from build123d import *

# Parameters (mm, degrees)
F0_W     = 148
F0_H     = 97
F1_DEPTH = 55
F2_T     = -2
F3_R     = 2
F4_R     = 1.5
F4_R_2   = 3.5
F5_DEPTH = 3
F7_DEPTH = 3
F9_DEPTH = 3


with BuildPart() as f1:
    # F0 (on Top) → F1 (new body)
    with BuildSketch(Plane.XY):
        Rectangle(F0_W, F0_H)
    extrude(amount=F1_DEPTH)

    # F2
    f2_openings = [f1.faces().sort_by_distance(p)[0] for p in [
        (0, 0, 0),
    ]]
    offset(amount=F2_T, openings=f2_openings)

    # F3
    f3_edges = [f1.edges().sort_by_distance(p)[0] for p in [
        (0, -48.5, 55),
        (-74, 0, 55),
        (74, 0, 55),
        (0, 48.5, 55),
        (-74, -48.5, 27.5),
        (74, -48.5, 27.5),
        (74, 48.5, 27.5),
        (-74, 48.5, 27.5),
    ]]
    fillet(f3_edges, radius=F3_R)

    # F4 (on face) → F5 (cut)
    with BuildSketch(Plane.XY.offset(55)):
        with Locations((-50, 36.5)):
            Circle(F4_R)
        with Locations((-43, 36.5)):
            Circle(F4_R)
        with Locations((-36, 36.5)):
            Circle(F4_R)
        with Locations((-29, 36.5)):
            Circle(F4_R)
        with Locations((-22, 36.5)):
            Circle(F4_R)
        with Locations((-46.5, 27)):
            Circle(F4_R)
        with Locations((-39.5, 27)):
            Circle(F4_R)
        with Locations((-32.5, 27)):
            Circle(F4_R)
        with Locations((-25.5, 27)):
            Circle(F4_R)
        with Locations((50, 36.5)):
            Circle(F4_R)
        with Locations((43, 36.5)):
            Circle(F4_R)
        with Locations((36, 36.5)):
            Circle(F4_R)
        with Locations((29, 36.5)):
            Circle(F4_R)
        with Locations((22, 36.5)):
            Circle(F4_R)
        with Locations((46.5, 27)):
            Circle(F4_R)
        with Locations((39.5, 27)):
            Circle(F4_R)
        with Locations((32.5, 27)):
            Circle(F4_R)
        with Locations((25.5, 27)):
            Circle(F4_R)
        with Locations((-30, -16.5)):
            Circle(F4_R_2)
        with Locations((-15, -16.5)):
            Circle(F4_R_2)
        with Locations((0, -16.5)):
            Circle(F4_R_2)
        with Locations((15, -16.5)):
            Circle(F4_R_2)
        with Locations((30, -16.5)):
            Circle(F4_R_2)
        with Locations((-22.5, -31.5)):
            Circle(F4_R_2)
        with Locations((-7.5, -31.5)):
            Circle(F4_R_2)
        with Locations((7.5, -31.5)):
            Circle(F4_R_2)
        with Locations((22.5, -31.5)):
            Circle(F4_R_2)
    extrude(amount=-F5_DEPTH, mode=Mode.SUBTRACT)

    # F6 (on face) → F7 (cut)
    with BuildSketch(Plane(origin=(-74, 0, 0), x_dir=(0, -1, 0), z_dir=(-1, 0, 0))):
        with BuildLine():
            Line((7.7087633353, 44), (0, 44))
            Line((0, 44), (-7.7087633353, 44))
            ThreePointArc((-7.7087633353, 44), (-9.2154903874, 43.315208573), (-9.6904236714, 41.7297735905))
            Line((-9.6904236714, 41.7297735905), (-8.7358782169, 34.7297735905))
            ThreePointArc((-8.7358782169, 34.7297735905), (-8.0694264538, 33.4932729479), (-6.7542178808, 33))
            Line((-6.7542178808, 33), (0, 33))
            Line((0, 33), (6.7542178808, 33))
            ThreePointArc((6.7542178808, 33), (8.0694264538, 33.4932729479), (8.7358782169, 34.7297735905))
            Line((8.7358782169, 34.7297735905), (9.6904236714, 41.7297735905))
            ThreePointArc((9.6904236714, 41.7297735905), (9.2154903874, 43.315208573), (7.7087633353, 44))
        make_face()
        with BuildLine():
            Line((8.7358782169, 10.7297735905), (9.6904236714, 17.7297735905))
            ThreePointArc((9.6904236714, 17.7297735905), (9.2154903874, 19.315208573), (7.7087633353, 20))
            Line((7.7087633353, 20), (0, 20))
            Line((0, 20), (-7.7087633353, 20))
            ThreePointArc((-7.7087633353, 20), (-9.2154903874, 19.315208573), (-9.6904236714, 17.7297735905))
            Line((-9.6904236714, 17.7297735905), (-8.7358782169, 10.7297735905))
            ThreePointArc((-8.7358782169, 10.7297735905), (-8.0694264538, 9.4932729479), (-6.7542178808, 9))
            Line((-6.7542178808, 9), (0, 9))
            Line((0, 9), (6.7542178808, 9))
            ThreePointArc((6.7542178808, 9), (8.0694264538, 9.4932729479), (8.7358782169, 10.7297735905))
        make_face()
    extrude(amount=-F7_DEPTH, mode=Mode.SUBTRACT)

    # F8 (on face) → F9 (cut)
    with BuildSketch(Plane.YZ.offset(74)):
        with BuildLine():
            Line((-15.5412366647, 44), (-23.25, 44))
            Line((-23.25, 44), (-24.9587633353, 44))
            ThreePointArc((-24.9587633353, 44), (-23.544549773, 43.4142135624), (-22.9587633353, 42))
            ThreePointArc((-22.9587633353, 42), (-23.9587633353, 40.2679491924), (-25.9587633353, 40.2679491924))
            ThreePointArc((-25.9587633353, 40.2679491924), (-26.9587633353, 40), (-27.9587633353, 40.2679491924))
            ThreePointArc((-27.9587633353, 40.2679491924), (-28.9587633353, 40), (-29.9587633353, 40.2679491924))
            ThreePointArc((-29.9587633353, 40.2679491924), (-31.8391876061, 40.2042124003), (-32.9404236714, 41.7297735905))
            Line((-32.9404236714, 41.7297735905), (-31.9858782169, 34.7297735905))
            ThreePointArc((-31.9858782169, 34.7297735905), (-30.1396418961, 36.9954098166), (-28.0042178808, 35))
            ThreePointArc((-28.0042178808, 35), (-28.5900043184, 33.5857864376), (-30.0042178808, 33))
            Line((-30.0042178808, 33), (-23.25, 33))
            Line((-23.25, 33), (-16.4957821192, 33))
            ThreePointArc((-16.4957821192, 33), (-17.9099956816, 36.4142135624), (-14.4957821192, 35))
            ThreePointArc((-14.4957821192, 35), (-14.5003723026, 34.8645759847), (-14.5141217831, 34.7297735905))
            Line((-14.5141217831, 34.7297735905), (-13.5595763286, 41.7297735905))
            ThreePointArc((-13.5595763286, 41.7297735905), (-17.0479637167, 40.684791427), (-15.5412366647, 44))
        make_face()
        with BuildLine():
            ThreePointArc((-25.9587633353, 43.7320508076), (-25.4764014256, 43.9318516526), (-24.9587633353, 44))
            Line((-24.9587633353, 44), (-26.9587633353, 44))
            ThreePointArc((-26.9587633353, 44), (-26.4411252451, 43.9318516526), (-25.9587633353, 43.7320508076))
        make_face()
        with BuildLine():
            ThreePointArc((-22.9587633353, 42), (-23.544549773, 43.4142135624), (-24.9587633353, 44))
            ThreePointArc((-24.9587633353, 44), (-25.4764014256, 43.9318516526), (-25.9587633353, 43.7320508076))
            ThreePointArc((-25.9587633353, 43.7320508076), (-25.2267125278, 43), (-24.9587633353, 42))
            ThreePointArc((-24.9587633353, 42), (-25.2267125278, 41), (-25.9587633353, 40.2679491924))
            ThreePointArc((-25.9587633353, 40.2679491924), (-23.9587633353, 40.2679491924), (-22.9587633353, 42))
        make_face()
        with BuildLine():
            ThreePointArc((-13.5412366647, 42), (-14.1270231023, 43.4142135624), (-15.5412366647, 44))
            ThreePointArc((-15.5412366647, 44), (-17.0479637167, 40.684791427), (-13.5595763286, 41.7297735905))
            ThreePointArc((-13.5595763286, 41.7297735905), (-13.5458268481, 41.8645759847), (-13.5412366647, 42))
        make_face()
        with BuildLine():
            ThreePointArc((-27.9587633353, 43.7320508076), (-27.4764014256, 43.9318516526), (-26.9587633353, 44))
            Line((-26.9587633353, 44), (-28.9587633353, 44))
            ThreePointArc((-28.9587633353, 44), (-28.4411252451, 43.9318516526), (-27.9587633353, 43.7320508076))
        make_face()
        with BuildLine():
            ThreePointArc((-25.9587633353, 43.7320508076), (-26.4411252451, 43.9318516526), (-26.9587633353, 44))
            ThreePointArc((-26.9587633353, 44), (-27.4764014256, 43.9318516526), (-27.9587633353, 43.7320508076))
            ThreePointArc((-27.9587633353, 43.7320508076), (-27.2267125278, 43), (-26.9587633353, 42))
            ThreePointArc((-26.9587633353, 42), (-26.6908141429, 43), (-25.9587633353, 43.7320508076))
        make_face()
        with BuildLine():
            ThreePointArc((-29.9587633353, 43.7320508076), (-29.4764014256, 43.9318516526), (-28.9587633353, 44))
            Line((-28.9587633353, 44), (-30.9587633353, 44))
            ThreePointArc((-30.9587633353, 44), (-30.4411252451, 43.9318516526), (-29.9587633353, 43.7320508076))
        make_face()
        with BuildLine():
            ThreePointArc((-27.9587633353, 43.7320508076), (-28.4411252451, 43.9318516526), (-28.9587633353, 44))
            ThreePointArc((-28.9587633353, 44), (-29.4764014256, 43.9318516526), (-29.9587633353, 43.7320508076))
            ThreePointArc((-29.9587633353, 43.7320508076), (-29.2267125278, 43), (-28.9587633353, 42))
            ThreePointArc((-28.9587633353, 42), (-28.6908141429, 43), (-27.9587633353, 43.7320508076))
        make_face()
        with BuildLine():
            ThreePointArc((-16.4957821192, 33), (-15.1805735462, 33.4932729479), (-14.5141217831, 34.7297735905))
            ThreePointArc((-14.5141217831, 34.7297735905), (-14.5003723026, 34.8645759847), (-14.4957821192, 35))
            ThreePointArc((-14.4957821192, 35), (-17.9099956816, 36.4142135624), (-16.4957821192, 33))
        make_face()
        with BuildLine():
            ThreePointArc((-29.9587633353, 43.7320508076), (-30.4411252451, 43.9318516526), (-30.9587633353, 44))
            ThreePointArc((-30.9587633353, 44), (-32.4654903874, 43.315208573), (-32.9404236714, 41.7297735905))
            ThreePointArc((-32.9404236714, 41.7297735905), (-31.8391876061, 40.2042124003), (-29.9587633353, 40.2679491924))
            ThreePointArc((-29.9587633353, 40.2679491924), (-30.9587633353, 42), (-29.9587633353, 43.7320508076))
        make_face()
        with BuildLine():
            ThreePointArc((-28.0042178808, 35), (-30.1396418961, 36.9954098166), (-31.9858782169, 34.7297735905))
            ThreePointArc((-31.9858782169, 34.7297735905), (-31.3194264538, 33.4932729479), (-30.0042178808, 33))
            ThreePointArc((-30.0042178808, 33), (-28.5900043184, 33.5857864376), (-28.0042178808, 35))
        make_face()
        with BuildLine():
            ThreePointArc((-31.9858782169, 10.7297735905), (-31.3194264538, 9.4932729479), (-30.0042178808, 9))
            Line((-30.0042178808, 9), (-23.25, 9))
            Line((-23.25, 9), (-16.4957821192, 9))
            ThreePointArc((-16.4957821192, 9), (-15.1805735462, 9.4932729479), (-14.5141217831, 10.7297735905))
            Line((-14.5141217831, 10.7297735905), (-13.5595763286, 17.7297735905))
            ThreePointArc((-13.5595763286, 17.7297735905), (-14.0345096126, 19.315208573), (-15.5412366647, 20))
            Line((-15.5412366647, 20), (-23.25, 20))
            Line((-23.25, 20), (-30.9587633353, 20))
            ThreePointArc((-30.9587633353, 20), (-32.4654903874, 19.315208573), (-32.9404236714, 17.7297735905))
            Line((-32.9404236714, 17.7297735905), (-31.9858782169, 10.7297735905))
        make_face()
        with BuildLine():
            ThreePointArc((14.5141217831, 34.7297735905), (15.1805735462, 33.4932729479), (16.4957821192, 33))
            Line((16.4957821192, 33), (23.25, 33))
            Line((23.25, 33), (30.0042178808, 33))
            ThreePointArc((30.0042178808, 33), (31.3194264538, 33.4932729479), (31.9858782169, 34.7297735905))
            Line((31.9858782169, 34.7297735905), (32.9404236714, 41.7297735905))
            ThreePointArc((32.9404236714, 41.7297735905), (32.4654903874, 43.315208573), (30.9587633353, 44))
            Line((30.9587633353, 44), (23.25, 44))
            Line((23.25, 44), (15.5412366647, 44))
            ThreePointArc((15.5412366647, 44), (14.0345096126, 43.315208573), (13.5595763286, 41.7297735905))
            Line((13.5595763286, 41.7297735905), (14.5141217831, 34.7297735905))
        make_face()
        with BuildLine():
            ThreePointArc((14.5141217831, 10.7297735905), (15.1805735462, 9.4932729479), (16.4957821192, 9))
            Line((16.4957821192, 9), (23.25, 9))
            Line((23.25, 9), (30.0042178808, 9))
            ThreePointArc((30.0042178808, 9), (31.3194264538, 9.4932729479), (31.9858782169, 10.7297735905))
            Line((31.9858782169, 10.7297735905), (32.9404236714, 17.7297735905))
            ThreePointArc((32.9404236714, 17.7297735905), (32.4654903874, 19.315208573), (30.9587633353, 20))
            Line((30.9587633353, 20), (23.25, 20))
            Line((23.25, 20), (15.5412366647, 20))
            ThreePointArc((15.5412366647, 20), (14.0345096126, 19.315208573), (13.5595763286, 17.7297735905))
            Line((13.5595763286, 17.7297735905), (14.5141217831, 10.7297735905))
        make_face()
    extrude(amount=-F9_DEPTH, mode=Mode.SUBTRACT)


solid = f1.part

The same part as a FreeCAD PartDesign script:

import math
import FreeCAD as App
import Part
import Sketcher
Q = App.Units.Quantity


def edges_at(feature, points):
    """Names of the edges that pass closest to the given points."""
    edges = feature.Shape.Edges
    near = lambda p: min(range(len(edges)), key=lambda i: edges[i].distToShape(Part.Vertex(*p))[0])
    return sorted({f"Edge{near(p) + 1}" for p in points})


def faces_at(feature, points):
    """Names of the faces that lie closest to the given points."""
    faces = feature.Shape.Faces
    near = lambda p: min(range(len(faces)), key=lambda i: faces[i].distToShape(Part.Vertex(*p))[0])
    return sorted({f"Face{near(p) + 1}" for p in points})

doc = App.newDocument("Part")
body = doc.addObject("PartDesign::Body", "Body")
body.AllowCompound = True

# Sketch on XY plane
sketch1 = doc.addObject("Sketcher::SketchObject", "Sketch")
body.addObject(sketch1)
sketch1.AttachmentSupport = (doc.XY_Plane, [""])
sketch1.MapMode = "FlatFace"
sketch1.addGeometry([
    Part.LineSegment(App.Vector(-74, 48, 0), App.Vector(-74, -48, 0)),
    Part.LineSegment(App.Vector(-74, -48, 0), App.Vector(74, -48, 0)),
    Part.LineSegment(App.Vector(74, -48, 0), App.Vector(74, 48, 0)),
    Part.LineSegment(App.Vector(74, 48, 0), App.Vector(-74, 48, 0)),
], False)
sketch1.addConstraint([
    Sketcher.Constraint("Coincident", 0, 2, 1, 1),
    Sketcher.Constraint("Coincident", 1, 2, 2, 1),
    Sketcher.Constraint("Coincident", 2, 2, 3, 1),
    Sketcher.Constraint("Coincident", 3, 2, 0, 1),
    Sketcher.Constraint("Vertical", 0),
    Sketcher.Constraint("Horizontal", 1),
    Sketcher.Constraint("Vertical", 2),
    Sketcher.Constraint("Horizontal", 3),
    Sketcher.Constraint("Symmetric", 0, 2, 2, 2, -1, 1),
    Sketcher.Constraint("DistanceX", 1, 1, 1, 2, Q("148 mm")),
    Sketcher.Constraint("DistanceY", 0, 2, 0, 1, Q("97 mm")),
])
pad1 = doc.addObject("PartDesign::Pad", "Pad")
body.addObject(pad1)
pad1.Profile = sketch1
pad1.Length = 55
doc.recompute()

thickness = doc.addObject("PartDesign::Thickness", "Thickness")
body.addObject(thickness)
thickness.Base = (pad1, faces_at(pad1, [(0, 0, 0)]))
thickness.Value = 2
thickness.Reversed = True
thickness.Join = "Arc"
doc.recompute()

fillet = doc.addObject("PartDesign::Fillet", "Fillet")
body.addObject(fillet)
fillet.Base = (thickness, edges_at(thickness, [
    (0, -48.5, 55),
    (-74, 0, 55),
    (74, 0, 55),
    (0, 48.5, 55),
    (-74, -48.5, 27.5),
    (74, -48.5, 27.5),
    (74, 48.5, 27.5),
    (-74, 48.5, 27.5),
]))
fillet.Radius = 2

# Sketch on XY plane
sketch2 = doc.addObject("Sketcher::SketchObject", "Sketch001")
body.addObject(sketch2)
sketch2.AttachmentSupport = (doc.XY_Plane, [""])
sketch2.MapMode = "FlatFace"
sketch2.AttachmentOffset = App.Placement(App.Vector(0, 0, 55), App.Rotation())
sketch2.addGeometry([
    Part.Circle(App.Vector(-50, 36.5, 0), App.Vector(0, 0, 1), 1.5),  # 0
    Part.Circle(App.Vector(-43, 36.5, 0), App.Vector(0, 0, 1), 1.5),  # 1
    Part.Circle(App.Vector(-36, 36.5, 0), App.Vector(0, 0, 1), 1.5),  # 2
    Part.Circle(App.Vector(-29, 36.5, 0), App.Vector(0, 0, 1), 1.5),  # 3
    Part.Circle(App.Vector(-22, 36.5, 0), App.Vector(0, 0, 1), 1.5),  # 4
    Part.Circle(App.Vector(-46.5, 27, 0), App.Vector(0, 0, 1), 1.5),  # 5
    Part.Circle(App.Vector(-39.5, 27, 0), App.Vector(0, 0, 1), 1.5),  # 6
    Part.Circle(App.Vector(-32.5, 27, 0), App.Vector(0, 0, 1), 1.5),  # 7
    Part.Circle(App.Vector(-25.5, 27, 0), App.Vector(0, 0, 1), 1.5),  # 8
    Part.Circle(App.Vector(50, 36.5, 0), App.Vector(0, 0, 1), 1.5),  # 9
    Part.Circle(App.Vector(43, 36.5, 0), App.Vector(0, 0, 1), 1.5),  # 10
    Part.Circle(App.Vector(36, 36.5, 0), App.Vector(0, 0, 1), 1.5),  # 11
    Part.Circle(App.Vector(29, 36.5, 0), App.Vector(0, 0, 1), 1.5),  # 12
    Part.Circle(App.Vector(22, 36.5, 0), App.Vector(0, 0, 1), 1.5),  # 13
    Part.Circle(App.Vector(46.5, 27, 0), App.Vector(0, 0, 1), 1.5),  # 14
    Part.Circle(App.Vector(39.5, 27, 0), App.Vector(0, 0, 1), 1.5),  # 15
    Part.Circle(App.Vector(32.5, 27, 0), App.Vector(0, 0, 1), 1.5),  # 16
    Part.Circle(App.Vector(25.5, 27, 0), App.Vector(0, 0, 1), 1.5),  # 17
    Part.Circle(App.Vector(-30, -16.5, 0), App.Vector(0, 0, 1), 3.5),  # 18
    Part.Circle(App.Vector(-15, -16.5, 0), App.Vector(0, 0, 1), 3.5),  # 19
    Part.Circle(App.Vector(0, -16.5, 0), App.Vector(0, 0, 1), 3.5),  # 20
    Part.Circle(App.Vector(15, -16.5, 0), App.Vector(0, 0, 1), 3.5),  # 21
    Part.Circle(App.Vector(30, -16.5, 0), App.Vector(0, 0, 1), 3.5),  # 22
    Part.Circle(App.Vector(-22.5, -31.5, 0), App.Vector(0, 0, 1), 3.5),  # 23
    Part.Circle(App.Vector(-7.5, -31.5, 0), App.Vector(0, 0, 1), 3.5),  # 24
    Part.Circle(App.Vector(7.5, -31.5, 0), App.Vector(0, 0, 1), 3.5),  # 25
    Part.Circle(App.Vector(22.5, -31.5, 0), App.Vector(0, 0, 1), 3.5),  # 26
], False)
sketch2.addConstraint([
    Sketcher.Constraint("Equal", 0, 1),
    Sketcher.Constraint("Equal", 1, 2),
    Sketcher.Constraint("Equal", 2, 3),
    Sketcher.Constraint("Equal", 3, 4),
    Sketcher.Constraint("Equal", 4, 5),
    Sketcher.Constraint("Equal", 5, 6),
    Sketcher.Constraint("Equal", 6, 7),
    Sketcher.Constraint("Equal", 7, 8),
    Sketcher.Constraint("Equal", 8, 9),
    Sketcher.Constraint("Equal", 9, 10),
    Sketcher.Constraint("Equal", 10, 11),
    Sketcher.Constraint("Equal", 11, 12),
    Sketcher.Constraint("Equal", 12, 13),
    Sketcher.Constraint("Equal", 13, 14),
    Sketcher.Constraint("Equal", 14, 15),
    Sketcher.Constraint("Equal", 15, 16),
    Sketcher.Constraint("Equal", 16, 17),
    Sketcher.Constraint("Equal", 18, 19),
    Sketcher.Constraint("Equal", 19, 20),
    Sketcher.Constraint("Equal", 20, 21),
    Sketcher.Constraint("Equal", 21, 22),
    Sketcher.Constraint("Equal", 22, 23),
    Sketcher.Constraint("Equal", 23, 24),
    Sketcher.Constraint("Equal", 24, 25),
    Sketcher.Constraint("Equal", 25, 26),
    Sketcher.Constraint("Symmetric", 0, 3, 9, 3, -2),
    Sketcher.Constraint("Symmetric", 1, 3, 10, 3, -2),
    Sketcher.Constraint("Symmetric", 2, 3, 11, 3, -2),
    Sketcher.Constraint("Symmetric", 3, 3, 12, 3, -2),
    Sketcher.Constraint("Symmetric", 4, 3, 13, 3, -2),
    Sketcher.Constraint("Symmetric", 5, 3, 14, 3, -2),
    Sketcher.Constraint("Symmetric", 6, 3, 15, 3, -2),
    Sketcher.Constraint("Symmetric", 7, 3, 16, 3, -2),
    Sketcher.Constraint("Symmetric", 8, 3, 17, 3, -2),
    Sketcher.Constraint("Symmetric", 19, 3, 21, 3, -2),
    Sketcher.Constraint("Symmetric", 18, 3, 22, 3, -2),
    Sketcher.Constraint("Symmetric", 24, 3, 25, 3, -2),
    Sketcher.Constraint("Symmetric", 23, 3, 26, 3, -2),
    Sketcher.Constraint("PointOnObject", 20, 3, -2),
    Sketcher.Constraint("Horizontal", 0, 3, 1, 3),
    Sketcher.Constraint("Horizontal", 1, 3, 2, 3),
    Sketcher.Constraint("Horizontal", 2, 3, 3, 3),
    Sketcher.Constraint("Horizontal", 3, 3, 4, 3),
    Sketcher.Constraint("Horizontal", 5, 3, 6, 3),
    Sketcher.Constraint("Horizontal", 6, 3, 7, 3),
    Sketcher.Constraint("Horizontal", 7, 3, 8, 3),
    Sketcher.Constraint("Horizontal", 18, 3, 19, 3),
    Sketcher.Constraint("Horizontal", 19, 3, 20, 3),
    Sketcher.Constraint("Horizontal", 23, 3, 24, 3),
    Sketcher.Constraint("Diameter", 0, Q("3 mm")),
    Sketcher.Constraint("Diameter", 18, Q("7 mm")),
    Sketcher.Constraint("DistanceX", 0, 3, -1, 1, Q("50 mm")),
    Sketcher.Constraint("DistanceX", 1, 3, -1, 1, Q("43 mm")),
    Sketcher.Constraint("DistanceX", 2, 3, -1, 1, Q("36 mm")),
    Sketcher.Constraint("DistanceX", 3, 3, -1, 1, Q("29 mm")),
    Sketcher.Constraint("DistanceX", 4, 3, -1, 1, Q("22 mm")),
    Sketcher.Constraint("DistanceY", -1, 1, 5, 3, Q("27 mm")),
    Sketcher.Constraint("DistanceX", 18, 3, -1, 1, Q("30 mm")),
    Sketcher.Constraint("DistanceX", 19, 3, -1, 1, Q("15 mm")),
    Sketcher.Constraint("DistanceX", 5, 3, 6, 3, Q("7 mm")),
    Sketcher.Constraint("DistanceX", 6, 3, 7, 3, Q("7 mm")),
    Sketcher.Constraint("DistanceX", 7, 3, 8, 3, Q("7 mm")),
    Sketcher.Constraint("DistanceY", 18, 3, 3, 3, Q("53 mm")),
    Sketcher.Constraint("DistanceY", 23, 3, 18, 3, Q("15 mm")),
    Sketcher.Constraint("DistanceX", 23, 3, 24, 3, Q("15 mm")),
    Sketcher.Constraint("DistanceX", 24, 3, 25, 3, Q("15 mm")),
    Sketcher.Constraint("DistanceY", -1, 1, 0, 3, Q("36.5 mm")),
    Sketcher.Constraint("DistanceX", 5, 3, -1, 1, Q("46.5 mm")),
])
pocket1 = doc.addObject("PartDesign::Pocket", "Pocket")
body.addObject(pocket1)
pocket1.Profile = sketch2
pocket1.Length = 3

# Sketch on YZ plane
sketch3 = doc.addObject("Sketcher::SketchObject", "Sketch002")
body.addObject(sketch3)
sketch3.AttachmentSupport = (doc.YZ_Plane, [""])
sketch3.MapMode = "FlatFace"
sketch3.AttachmentOffset = App.Placement(App.Vector(0, 0, -74), App.Rotation())
sketch3.addGeometry([
    Part.LineSegment(App.Vector(-7.7, 44, 0), App.Vector(7.7, 44, 0)),  # 0
    Part.ArcOfCircle(Part.Circle(App.Vector(7.7, 42, 0), App.Vector(0, 0, 1), 2), math.radians(-8), math.radians(90)),  # 1
    Part.LineSegment(App.Vector(9.7, 41.7, 0), App.Vector(8.7, 34.7, 0)),  # 2
    Part.ArcOfCircle(Part.Circle(App.Vector(6.8, 35, 0), App.Vector(0, 0, 1), 2), math.radians(-90), math.radians(-8)),  # 3
    Part.LineSegment(App.Vector(6.8, 33, 0), App.Vector(-6.8, 33, 0)),  # 4
    Part.ArcOfCircle(Part.Circle(App.Vector(-6.8, 35, 0), App.Vector(0, 0, 1), 2), math.radians(-172), math.radians(-90)),  # 5
    Part.LineSegment(App.Vector(-8.7, 34.7, 0), App.Vector(-9.7, 41.7, 0)),  # 6
    Part.ArcOfCircle(Part.Circle(App.Vector(-7.7, 42, 0), App.Vector(0, 0, 1), 2), math.radians(90), math.radians(188)),  # 7
    Part.LineSegment(App.Vector(-8.7, 10.7, 0), App.Vector(-9.7, 17.7, 0)),  # 8
    Part.ArcOfCircle(Part.Circle(App.Vector(-7.7, 18, 0), App.Vector(0, 0, 1), 2), math.radians(90), math.radians(188)),  # 9
    Part.LineSegment(App.Vector(-7.7, 20, 0), App.Vector(7.7, 20, 0)),  # 10
    Part.ArcOfCircle(Part.Circle(App.Vector(7.7, 18, 0), App.Vector(0, 0, 1), 2), math.radians(-8), math.radians(90)),  # 11
    Part.LineSegment(App.Vector(9.7, 17.7, 0), App.Vector(8.7, 10.7, 0)),  # 12
    Part.ArcOfCircle(Part.Circle(App.Vector(6.8, 11, 0), App.Vector(0, 0, 1), 2), math.radians(-90), math.radians(-8)),  # 13
    Part.LineSegment(App.Vector(6.8, 9, 0), App.Vector(-6.8, 9, 0)),  # 14
    Part.ArcOfCircle(Part.Circle(App.Vector(-6.8, 11, 0), App.Vector(0, 0, 1), 2), math.radians(-172), math.radians(-90)),  # 15
], False)
sketch3.addConstraint([
    Sketcher.Constraint("Tangent", 0, 2, 1, 2),
    Sketcher.Constraint("Tangent", 1, 1, 2, 1),
    Sketcher.Constraint("Tangent", 2, 2, 3, 2),
    Sketcher.Constraint("Tangent", 3, 1, 4, 1),
    Sketcher.Constraint("Tangent", 4, 2, 5, 2),
    Sketcher.Constraint("Tangent", 5, 1, 6, 1),
    Sketcher.Constraint("Tangent", 6, 2, 7, 2),
    Sketcher.Constraint("Tangent", 7, 1, 0, 1),
    Sketcher.Constraint("Tangent", 8, 2, 9, 2),
    Sketcher.Constraint("Tangent", 9, 1, 10, 1),
    Sketcher.Constraint("Tangent", 10, 2, 11, 2),
    Sketcher.Constraint("Tangent", 11, 1, 12, 1),
    Sketcher.Constraint("Tangent", 12, 2, 13, 2),
    Sketcher.Constraint("Tangent", 13, 1, 14, 1),
    Sketcher.Constraint("Tangent", 14, 2, 15, 2),
    Sketcher.Constraint("Tangent", 15, 1, 8, 1),
    Sketcher.Constraint("Horizontal", 0),
    Sketcher.Constraint("Horizontal", 4),
    Sketcher.Constraint("Horizontal", 10),
    Sketcher.Constraint("Horizontal", 14),
    Sketcher.Constraint("Equal", 1, 3),
    Sketcher.Constraint("Equal", 3, 5),
    Sketcher.Constraint("Equal", 5, 7),
    Sketcher.Constraint("Equal", 7, 9),
    Sketcher.Constraint("Equal", 9, 11),
    Sketcher.Constraint("Equal", 11, 13),
    Sketcher.Constraint("Equal", 13, 15),
    Sketcher.Constraint("Symmetric", 2, 2, 5, 1, -2),
    Sketcher.Constraint("Symmetric", 8, 2, 11, 1, -2),
    Sketcher.Constraint("Parallel", 6, 8),
    Sketcher.Constraint("Vertical", 7, 3, 9, 3),
    Sketcher.Constraint("Vertical", 3, 3, 13, 3),
    Sketcher.Constraint("Radius", 1, Q("2 mm")),
    Sketcher.Constraint("DistanceY", -1, 1, 1, 3, Q("42 mm")),
    Sketcher.Constraint("DistanceY", -1, 1, 3, 3, Q("35 mm")),
    Sketcher.Constraint("DistanceY", -1, 1, 9, 3, Q("18 mm")),
    Sketcher.Constraint("DistanceX", 0, 1, 0, 2, Q("15.417527 mm")),
    Sketcher.Constraint("DistanceX", 4, 2, 4, 1, Q("13.508436 mm")),
])
pocket2 = doc.addObject("PartDesign::Pocket", "Pocket001")
body.addObject(pocket2)
pocket2.Profile = sketch3
pocket2.Length = 3
pocket2.Reversed = True

# Sketch on YZ plane
sketch4 = doc.addObject("Sketcher::SketchObject", "Sketch003")
body.addObject(sketch4)
sketch4.AttachmentSupport = (doc.YZ_Plane, [""])
sketch4.MapMode = "FlatFace"
sketch4.AttachmentOffset = App.Placement(App.Vector(0, 0, 74), App.Rotation())
sketch4.addGeometry([
    Part.LineSegment(App.Vector(-15.54, 44, 0), App.Vector(-30.96, 44, 0)),  # 0
    Part.ArcOfCircle(Part.Circle(App.Vector(-30.96, 42, 0), App.Vector(0, 0, 1), 2), math.radians(90), math.radians(188)),  # 1
    Part.LineSegment(App.Vector(-32.94, 41.73, 0), App.Vector(-31.99, 34.73, 0)),  # 2
    Part.ArcOfCircle(Part.Circle(App.Vector(-30, 35, 0), App.Vector(0, 0, 1), 2), math.radians(-172), math.radians(-90)),  # 3
    Part.LineSegment(App.Vector(-30, 33, 0), App.Vector(-16.5, 33, 0)),  # 4
    Part.ArcOfCircle(Part.Circle(App.Vector(-16.5, 35, 0), App.Vector(0, 0, 1), 2), math.radians(-90), math.radians(-8)),  # 5
    Part.LineSegment(App.Vector(-14.51, 34.73, 0), App.Vector(-13.56, 41.73, 0)),  # 6
    Part.ArcOfCircle(Part.Circle(App.Vector(-15.54, 42, 0), App.Vector(0, 0, 1), 2), math.radians(-7.77), math.radians(0)),  # 7
    Part.ArcOfCircle(Part.Circle(App.Vector(-15.54, 42, 0), App.Vector(0, 0, 1), 2), math.radians(0), math.radians(90)),  # 8
    Part.ArcOfCircle(Part.Circle(App.Vector(-30.96, 42, 0), App.Vector(0, 0, 1), 2), math.radians(0), math.radians(60)),  # 9
    Part.ArcOfCircle(Part.Circle(App.Vector(-26.96, 42, 0), App.Vector(0, 0, 1), 2), math.radians(120), math.radians(180)),  # 10
    Part.ArcOfCircle(Part.Circle(App.Vector(-28.96, 42, 0), App.Vector(0, 0, 1), 2), math.radians(0), math.radians(60)),  # 11
    Part.ArcOfCircle(Part.Circle(App.Vector(-24.96, 42, 0), App.Vector(0, 0, 1), 2), math.radians(120), math.radians(180)),  # 12
    Part.ArcOfCircle(Part.Circle(App.Vector(-26.96, 42, 0), App.Vector(0, 0, 1), 2), math.radians(0), math.radians(60)),  # 13
    Part.ArcOfCircle(Part.Circle(App.Vector(-26.96, 42, 0), App.Vector(0, 0, 1), 2), math.radians(-60), math.radians(0)),  # 14
    Part.ArcOfCircle(Part.Circle(App.Vector(-26.96, 42, 0), App.Vector(0, 0, 1), 2), math.radians(-120), math.radians(-60)),  # 15
    Part.ArcOfCircle(Part.Circle(App.Vector(-28.96, 42, 0), App.Vector(0, 0, 1), 2), math.radians(-120), math.radians(-60)),  # 16
    Part.ArcOfCircle(Part.Circle(App.Vector(-28.96, 42, 0), App.Vector(0, 0, 1), 2), math.radians(120), math.radians(240)),  # 17
    Part.ArcOfCircle(Part.Circle(App.Vector(-30, 11, 0), App.Vector(0, 0, 1), 2), math.radians(-172), math.radians(-90)),  # 18
    Part.LineSegment(App.Vector(-30, 9, 0), App.Vector(-16.5, 9, 0)),  # 19
    Part.ArcOfCircle(Part.Circle(App.Vector(-16.5, 11, 0), App.Vector(0, 0, 1), 2), math.radians(-90), math.radians(-8)),  # 20
    Part.LineSegment(App.Vector(-14.51, 10.73, 0), App.Vector(-13.56, 17.73, 0)),  # 21
    Part.ArcOfCircle(Part.Circle(App.Vector(-15.54, 18, 0), App.Vector(0, 0, 1), 2), math.radians(-8), math.radians(90)),  # 22
    Part.LineSegment(App.Vector(-15.54, 20, 0), App.Vector(-30.96, 20, 0)),  # 23
    Part.ArcOfCircle(Part.Circle(App.Vector(-30.96, 18, 0), App.Vector(0, 0, 1), 2), math.radians(90), math.radians(188)),  # 24
    Part.LineSegment(App.Vector(-32.94, 17.73, 0), App.Vector(-31.99, 10.73, 0)),  # 25
    Part.ArcOfCircle(Part.Circle(App.Vector(16.5, 35, 0), App.Vector(0, 0, 1), 2), math.radians(-172), math.radians(-90)),  # 26
    Part.LineSegment(App.Vector(16.5, 33, 0), App.Vector(30, 33, 0)),  # 27
    Part.ArcOfCircle(Part.Circle(App.Vector(30, 35, 0), App.Vector(0, 0, 1), 2), math.radians(-90), math.radians(-8)),  # 28
    Part.LineSegment(App.Vector(31.99, 34.73, 0), App.Vector(32.94, 41.73, 0)),  # 29
    Part.ArcOfCircle(Part.Circle(App.Vector(30.96, 42, 0), App.Vector(0, 0, 1), 2), math.radians(-8), math.radians(90)),  # 30
    Part.LineSegment(App.Vector(30.96, 44, 0), App.Vector(15.54, 44, 0)),  # 31
    Part.ArcOfCircle(Part.Circle(App.Vector(15.54, 42, 0), App.Vector(0, 0, 1), 2), math.radians(90), math.radians(188)),  # 32
    Part.LineSegment(App.Vector(13.56, 41.73, 0), App.Vector(14.51, 34.73, 0)),  # 33
    Part.ArcOfCircle(Part.Circle(App.Vector(16.5, 11, 0), App.Vector(0, 0, 1), 2), math.radians(-172), math.radians(-90)),  # 34
    Part.LineSegment(App.Vector(16.5, 9, 0), App.Vector(30, 9, 0)),  # 35
    Part.ArcOfCircle(Part.Circle(App.Vector(30, 11, 0), App.Vector(0, 0, 1), 2), math.radians(-90), math.radians(-8)),  # 36
    Part.LineSegment(App.Vector(31.99, 10.73, 0), App.Vector(32.94, 17.73, 0)),  # 37
    Part.ArcOfCircle(Part.Circle(App.Vector(30.96, 18, 0), App.Vector(0, 0, 1), 2), math.radians(-8), math.radians(90)),  # 38
    Part.LineSegment(App.Vector(30.96, 20, 0), App.Vector(15.54, 20, 0)),  # 39
    Part.ArcOfCircle(Part.Circle(App.Vector(15.54, 18, 0), App.Vector(0, 0, 1), 2), math.radians(90), math.radians(188)),  # 40
    Part.LineSegment(App.Vector(13.56, 17.73, 0), App.Vector(14.51, 10.73, 0)),  # 41
], False)
sketch4.addConstraint([
    Sketcher.Constraint("Tangent", 0, 2, 1, 1),
    Sketcher.Constraint("Tangent", 1, 2, 2, 1),
    Sketcher.Constraint("Tangent", 2, 2, 3, 1),
    Sketcher.Constraint("Tangent", 3, 2, 4, 1),
    Sketcher.Constraint("Tangent", 4, 2, 5, 1),
    Sketcher.Constraint("Tangent", 5, 2, 6, 1),
    Sketcher.Constraint("Tangent", 6, 2, 7, 1),
    Sketcher.Constraint("Tangent", 7, 2, 8, 1),
    Sketcher.Constraint("Tangent", 8, 2, 0, 1),
    Sketcher.Constraint("Tangent", 9, 1, 10, 2),
    Sketcher.Constraint("Coincident", 10, 1, 11, 2),
    Sketcher.Constraint("Tangent", 11, 1, 12, 2),
    Sketcher.Constraint("Coincident", 12, 1, 13, 2),
    Sketcher.Constraint("Tangent", 13, 1, 14, 2),
    Sketcher.Constraint("Tangent", 14, 1, 15, 2),
    Sketcher.Constraint("Coincident", 15, 1, 16, 2),
    Sketcher.Constraint("Tangent", 16, 1, 17, 2),
    Sketcher.Constraint("Coincident", 17, 1, 9, 2),
    Sketcher.Constraint("Tangent", 18, 2, 19, 1),
    Sketcher.Constraint("Tangent", 19, 2, 20, 1),
    Sketcher.Constraint("Tangent", 20, 2, 21, 1),
    Sketcher.Constraint("Tangent", 21, 2, 22, 1),
    Sketcher.Constraint("Tangent", 22, 2, 23, 1),
    Sketcher.Constraint("Tangent", 23, 2, 24, 1),
    Sketcher.Constraint("Tangent", 24, 2, 25, 1),
    Sketcher.Constraint("Tangent", 25, 2, 18, 1),
    Sketcher.Constraint("Tangent", 26, 2, 27, 1),
    Sketcher.Constraint("Tangent", 27, 2, 28, 1),
    Sketcher.Constraint("Tangent", 28, 2, 29, 1),
    Sketcher.Constraint("Tangent", 29, 2, 30, 1),
    Sketcher.Constraint("Tangent", 30, 2, 31, 1),
    Sketcher.Constraint("Tangent", 31, 2, 32, 1),
    Sketcher.Constraint("Tangent", 32, 2, 33, 1),
    Sketcher.Constraint("Tangent", 33, 2, 26, 1),
    Sketcher.Constraint("Tangent", 34, 2, 35, 1),
    Sketcher.Constraint("Tangent", 35, 2, 36, 1),
    Sketcher.Constraint("Tangent", 36, 2, 37, 1),
    Sketcher.Constraint("Tangent", 37, 2, 38, 1),
    Sketcher.Constraint("Tangent", 38, 2, 39, 1),
    Sketcher.Constraint("Tangent", 39, 2, 40, 1),
    Sketcher.Constraint("Tangent", 40, 2, 41, 1),
    Sketcher.Constraint("Tangent", 41, 2, 34, 1),
    Sketcher.Constraint("Horizontal", 0),
    Sketcher.Constraint("Horizontal", 4),
    Sketcher.Constraint("Horizontal", 19),
    Sketcher.Constraint("Horizontal", 23),
    Sketcher.Constraint("Horizontal", 27),
    Sketcher.Constraint("Horizontal", 31),
    Sketcher.Constraint("Horizontal", 35),
    Sketcher.Constraint("Horizontal", 39),
    Sketcher.Constraint("Coincident", 9, 3, 1, 3),
    Sketcher.Constraint("Coincident", 13, 3, 10, 3),
    Sketcher.Constraint("Coincident", 15, 3, 10, 3),
    Sketcher.Constraint("Coincident", 16, 3, 11, 3),
    Sketcher.Constraint("Coincident", 9, 1, 11, 3),
    Sketcher.Constraint("Coincident", 11, 1, 10, 3),
    Sketcher.Constraint("Coincident", 13, 1, 12, 3),
    Sketcher.Constraint("Equal", 1, 3),
    Sketcher.Constraint("Equal", 3, 5),
    Sketcher.Constraint("Equal", 5, 7),
    Sketcher.Constraint("Equal", 7, 8),
    Sketcher.Constraint("Equal", 8, 9),
    Sketcher.Constraint("Equal", 9, 10),
    Sketcher.Constraint("Equal", 11, 12),
    Sketcher.Constraint("Equal", 15, 16),
    Sketcher.Constraint("Equal", 16, 17),
    Sketcher.Constraint("Equal", 17, 18),
    Sketcher.Constraint("Equal", 18, 20),
    Sketcher.Constraint("Equal", 20, 22),
    Sketcher.Constraint("Equal", 22, 24),
    Sketcher.Constraint("Equal", 24, 26),
    Sketcher.Constraint("Equal", 26, 28),
    Sketcher.Constraint("Equal", 28, 30),
    Sketcher.Constraint("Equal", 30, 32),
    Sketcher.Constraint("Equal", 32, 34),
    Sketcher.Constraint("Equal", 34, 36),
    Sketcher.Constraint("Equal", 36, 38),
    Sketcher.Constraint("Equal", 38, 40),
    Sketcher.Constraint("Symmetric", 5, 3, 26, 3, -2),
    Sketcher.Constraint("Symmetric", 1, 3, 30, 3, -2),
    Sketcher.Constraint("Symmetric", 20, 3, 34, 3, -2),
    Sketcher.Constraint("Symmetric", 24, 3, 38, 3, -2),
    Sketcher.Constraint("Parallel", 6, 21),
    Sketcher.Constraint("Parallel", 2, 25),
    Sketcher.Constraint("Parallel", 21, 29),
    Sketcher.Constraint("Parallel", 25, 33),
    Sketcher.Constraint("Parallel", 29, 37),
    Sketcher.Constraint("Parallel", 33, 41),
    Sketcher.Constraint("Horizontal", 9, 3, 10, 3),
    Sketcher.Constraint("Horizontal", 2, 2, 5, 2),
    Sketcher.Constraint("Horizontal", 32, 3, 7, 2),
    Sketcher.Constraint("Horizontal", 14, 1, 15, 1),
    Sketcher.Constraint("Horizontal", 15, 1, 16, 1),
    Sketcher.Constraint("Vertical", 3, 3, 18, 3),
    Sketcher.Constraint("Vertical", 5, 3, 20, 3),
    Sketcher.Constraint("Vertical", 8, 3, 22, 3),
    Sketcher.Constraint("Radius", 1, Q("2 mm")),
    Sketcher.Constraint("DistanceY", -1, 1, 1, 3, Q("42 mm")),
    Sketcher.Constraint("DistanceY", -1, 1, 3, 3, Q("35 mm")),
    Sketcher.Constraint("DistanceY", -1, 1, 18, 3, Q("11 mm")),
    Sketcher.Constraint("DistanceX", 0, 2, 0, 1, Q("15.417527 mm")),
    Sketcher.Constraint("DistanceX", 4, 1, 4, 2, Q("13.508436 mm")),
    Sketcher.Constraint("DistanceX", 2, 2, -1, 1, Q("31.985878 mm")),
])
pocket3 = doc.addObject("PartDesign::Pocket", "Pocket002")
body.addObject(pocket3)
pocket3.Profile = sketch4
pocket3.Length = 3

doc.recompute()
